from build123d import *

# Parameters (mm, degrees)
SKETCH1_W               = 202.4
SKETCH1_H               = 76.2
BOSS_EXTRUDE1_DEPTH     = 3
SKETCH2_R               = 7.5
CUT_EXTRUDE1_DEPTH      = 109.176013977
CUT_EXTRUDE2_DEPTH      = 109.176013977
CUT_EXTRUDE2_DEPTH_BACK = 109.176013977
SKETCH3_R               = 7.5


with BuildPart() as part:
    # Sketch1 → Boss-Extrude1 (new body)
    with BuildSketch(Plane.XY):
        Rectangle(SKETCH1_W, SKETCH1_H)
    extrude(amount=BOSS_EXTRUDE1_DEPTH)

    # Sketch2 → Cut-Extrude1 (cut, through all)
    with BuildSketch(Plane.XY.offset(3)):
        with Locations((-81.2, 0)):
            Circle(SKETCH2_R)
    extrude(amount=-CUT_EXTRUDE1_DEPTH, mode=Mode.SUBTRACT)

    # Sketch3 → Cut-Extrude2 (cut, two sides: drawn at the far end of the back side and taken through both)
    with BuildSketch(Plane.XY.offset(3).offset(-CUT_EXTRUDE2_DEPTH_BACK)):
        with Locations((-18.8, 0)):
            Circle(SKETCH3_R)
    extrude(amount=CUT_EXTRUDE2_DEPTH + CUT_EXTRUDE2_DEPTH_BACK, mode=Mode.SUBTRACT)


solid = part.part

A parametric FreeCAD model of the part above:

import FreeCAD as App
import Part
import Sketcher

V = App.Vector


def add_polygon(sketch, points):
    """Adds a closed chain of lines whose ends are joined by coincident constraints."""
    first, n = sketch.GeometryCount, len(points)
    for a, b in zip(points, points[1:] + points[:1]):
        sketch.addGeometry(Part.LineSegment(App.Vector(*a, 0), App.Vector(*b, 0)), False)
    for i in range(n):
        sketch.addConstraint(Sketcher.Constraint("Coincident", first + i, 2, first + (i + 1) % n, 1))

doc = App.newDocument("Part")
params = doc.addObject("Spreadsheet::Sheet", "Params")
for row, (alias, value) in enumerate([
    ("sketch1_width", "202.4 mm"),
    ("sketch1_height", "76.2 mm"),
    ("pad1_length", "3 mm"),
    ("sketch2_diameter", "15 mm"),
    ("sketch3_diameter", "15 mm"),
], start=1):
    params.set(f"A{row}", alias)
    params.set(f"B{row}", "=" + value)
    params.setAlias(f"B{row}", alias)

body = doc.addObject("PartDesign::Body", "Body")

sketch1 = doc.addObject("Sketcher::SketchObject", "Sketch")
body.addObject(sketch1)
sketch1.AttachmentSupport = (doc.XY_Plane, [""])
sketch1.MapMode = "FlatFace"
add_polygon(sketch1, [(-101, 38), (-101, -38), (101, -38), (101, 38)])
sketch1.addConstraint([
    Sketcher.Constraint("Vertical", 0),
    Sketcher.Constraint("Horizontal", 1),
    Sketcher.Constraint("Vertical", 2),
    Sketcher.Constraint("Horizontal", 3),
    Sketcher.Constraint("Symmetric", 0, 2, 2, 2, -1, 1),
    Sketcher.Constraint("DistanceX", 1, 1, 1, 2, 202.4),
    Sketcher.Constraint("DistanceY", 0, 2, 0, 1, 76.2),
])
sketch1.setExpression("Constraints[9]", "Params.sketch1_width")
sketch1.setExpression("Constraints[10]", "Params.sketch1_height")
pad1 = doc.addObject("PartDesign::Pad", "Pad")
body.addObject(pad1)
pad1.Profile = sketch1
pad1.setExpression("Length", "Params.pad1_length")

sketch2 = doc.addObject("Sketcher::SketchObject", "Sketch001")
body.addObject(sketch2)
sketch2.AttachmentSupport = (doc.XY_Plane, [""])
sketch2.MapMode = "FlatFace"
sketch2.AttachmentOffset = App.Placement(V(0, 0, 3), App.Rotation())
sketch2.addGeometry(Part.Circle(V(-81, 0, 0), V(0, 0, 1), 8), False)
sketch2.addConstraint([
    Sketcher.Constraint("PointOnObject", 0, 3, -1),
    Sketcher.Constraint("Diameter", 0, 15.0),
    Sketcher.Constraint("DistanceX", 0, 3, -1, 1, 81.2),
])
sketch2.setExpression("Constraints[1]", "Params.sketch2_diameter")
pocket1 = doc.addObject("PartDesign::Pocket", "Pocket")
body.addObject(pocket1)
pocket1.Profile = sketch2
pocket1.Type = "ThroughAll"

sketch3 = doc.addObject("Sketcher::SketchObject", "Sketch002")
body.addObject(sketch3)
sketch3.AttachmentSupport = (doc.XY_Plane, [""])
sketch3.MapMode = "FlatFace"
sketch3.AttachmentOffset = App.Placement(V(0, 0, 3), App.Rotation())
sketch3.addGeometry(Part.Circle(V(-19, 0, 0), V(0, 0, 1), 8), False)
sketch3.addConstraint([
    Sketcher.Constraint("PointOnObject", 0, 3, -1),
    Sketcher.Constraint("Diameter", 0, 15.0),
    Sketcher.Constraint("DistanceX", 0, 3, -1, 1, 18.8),
])
sketch3.setExpression("Constraints[1]", "Params.sketch3_diameter")
pocket2 = doc.addObject("PartDesign::Pocket", "Pocket001")
body.addObject(pocket2)
pocket2.Profile = sketch3
pocket2.Type = "ThroughAll"
pocket2.Midplane = True

doc.recompute()
